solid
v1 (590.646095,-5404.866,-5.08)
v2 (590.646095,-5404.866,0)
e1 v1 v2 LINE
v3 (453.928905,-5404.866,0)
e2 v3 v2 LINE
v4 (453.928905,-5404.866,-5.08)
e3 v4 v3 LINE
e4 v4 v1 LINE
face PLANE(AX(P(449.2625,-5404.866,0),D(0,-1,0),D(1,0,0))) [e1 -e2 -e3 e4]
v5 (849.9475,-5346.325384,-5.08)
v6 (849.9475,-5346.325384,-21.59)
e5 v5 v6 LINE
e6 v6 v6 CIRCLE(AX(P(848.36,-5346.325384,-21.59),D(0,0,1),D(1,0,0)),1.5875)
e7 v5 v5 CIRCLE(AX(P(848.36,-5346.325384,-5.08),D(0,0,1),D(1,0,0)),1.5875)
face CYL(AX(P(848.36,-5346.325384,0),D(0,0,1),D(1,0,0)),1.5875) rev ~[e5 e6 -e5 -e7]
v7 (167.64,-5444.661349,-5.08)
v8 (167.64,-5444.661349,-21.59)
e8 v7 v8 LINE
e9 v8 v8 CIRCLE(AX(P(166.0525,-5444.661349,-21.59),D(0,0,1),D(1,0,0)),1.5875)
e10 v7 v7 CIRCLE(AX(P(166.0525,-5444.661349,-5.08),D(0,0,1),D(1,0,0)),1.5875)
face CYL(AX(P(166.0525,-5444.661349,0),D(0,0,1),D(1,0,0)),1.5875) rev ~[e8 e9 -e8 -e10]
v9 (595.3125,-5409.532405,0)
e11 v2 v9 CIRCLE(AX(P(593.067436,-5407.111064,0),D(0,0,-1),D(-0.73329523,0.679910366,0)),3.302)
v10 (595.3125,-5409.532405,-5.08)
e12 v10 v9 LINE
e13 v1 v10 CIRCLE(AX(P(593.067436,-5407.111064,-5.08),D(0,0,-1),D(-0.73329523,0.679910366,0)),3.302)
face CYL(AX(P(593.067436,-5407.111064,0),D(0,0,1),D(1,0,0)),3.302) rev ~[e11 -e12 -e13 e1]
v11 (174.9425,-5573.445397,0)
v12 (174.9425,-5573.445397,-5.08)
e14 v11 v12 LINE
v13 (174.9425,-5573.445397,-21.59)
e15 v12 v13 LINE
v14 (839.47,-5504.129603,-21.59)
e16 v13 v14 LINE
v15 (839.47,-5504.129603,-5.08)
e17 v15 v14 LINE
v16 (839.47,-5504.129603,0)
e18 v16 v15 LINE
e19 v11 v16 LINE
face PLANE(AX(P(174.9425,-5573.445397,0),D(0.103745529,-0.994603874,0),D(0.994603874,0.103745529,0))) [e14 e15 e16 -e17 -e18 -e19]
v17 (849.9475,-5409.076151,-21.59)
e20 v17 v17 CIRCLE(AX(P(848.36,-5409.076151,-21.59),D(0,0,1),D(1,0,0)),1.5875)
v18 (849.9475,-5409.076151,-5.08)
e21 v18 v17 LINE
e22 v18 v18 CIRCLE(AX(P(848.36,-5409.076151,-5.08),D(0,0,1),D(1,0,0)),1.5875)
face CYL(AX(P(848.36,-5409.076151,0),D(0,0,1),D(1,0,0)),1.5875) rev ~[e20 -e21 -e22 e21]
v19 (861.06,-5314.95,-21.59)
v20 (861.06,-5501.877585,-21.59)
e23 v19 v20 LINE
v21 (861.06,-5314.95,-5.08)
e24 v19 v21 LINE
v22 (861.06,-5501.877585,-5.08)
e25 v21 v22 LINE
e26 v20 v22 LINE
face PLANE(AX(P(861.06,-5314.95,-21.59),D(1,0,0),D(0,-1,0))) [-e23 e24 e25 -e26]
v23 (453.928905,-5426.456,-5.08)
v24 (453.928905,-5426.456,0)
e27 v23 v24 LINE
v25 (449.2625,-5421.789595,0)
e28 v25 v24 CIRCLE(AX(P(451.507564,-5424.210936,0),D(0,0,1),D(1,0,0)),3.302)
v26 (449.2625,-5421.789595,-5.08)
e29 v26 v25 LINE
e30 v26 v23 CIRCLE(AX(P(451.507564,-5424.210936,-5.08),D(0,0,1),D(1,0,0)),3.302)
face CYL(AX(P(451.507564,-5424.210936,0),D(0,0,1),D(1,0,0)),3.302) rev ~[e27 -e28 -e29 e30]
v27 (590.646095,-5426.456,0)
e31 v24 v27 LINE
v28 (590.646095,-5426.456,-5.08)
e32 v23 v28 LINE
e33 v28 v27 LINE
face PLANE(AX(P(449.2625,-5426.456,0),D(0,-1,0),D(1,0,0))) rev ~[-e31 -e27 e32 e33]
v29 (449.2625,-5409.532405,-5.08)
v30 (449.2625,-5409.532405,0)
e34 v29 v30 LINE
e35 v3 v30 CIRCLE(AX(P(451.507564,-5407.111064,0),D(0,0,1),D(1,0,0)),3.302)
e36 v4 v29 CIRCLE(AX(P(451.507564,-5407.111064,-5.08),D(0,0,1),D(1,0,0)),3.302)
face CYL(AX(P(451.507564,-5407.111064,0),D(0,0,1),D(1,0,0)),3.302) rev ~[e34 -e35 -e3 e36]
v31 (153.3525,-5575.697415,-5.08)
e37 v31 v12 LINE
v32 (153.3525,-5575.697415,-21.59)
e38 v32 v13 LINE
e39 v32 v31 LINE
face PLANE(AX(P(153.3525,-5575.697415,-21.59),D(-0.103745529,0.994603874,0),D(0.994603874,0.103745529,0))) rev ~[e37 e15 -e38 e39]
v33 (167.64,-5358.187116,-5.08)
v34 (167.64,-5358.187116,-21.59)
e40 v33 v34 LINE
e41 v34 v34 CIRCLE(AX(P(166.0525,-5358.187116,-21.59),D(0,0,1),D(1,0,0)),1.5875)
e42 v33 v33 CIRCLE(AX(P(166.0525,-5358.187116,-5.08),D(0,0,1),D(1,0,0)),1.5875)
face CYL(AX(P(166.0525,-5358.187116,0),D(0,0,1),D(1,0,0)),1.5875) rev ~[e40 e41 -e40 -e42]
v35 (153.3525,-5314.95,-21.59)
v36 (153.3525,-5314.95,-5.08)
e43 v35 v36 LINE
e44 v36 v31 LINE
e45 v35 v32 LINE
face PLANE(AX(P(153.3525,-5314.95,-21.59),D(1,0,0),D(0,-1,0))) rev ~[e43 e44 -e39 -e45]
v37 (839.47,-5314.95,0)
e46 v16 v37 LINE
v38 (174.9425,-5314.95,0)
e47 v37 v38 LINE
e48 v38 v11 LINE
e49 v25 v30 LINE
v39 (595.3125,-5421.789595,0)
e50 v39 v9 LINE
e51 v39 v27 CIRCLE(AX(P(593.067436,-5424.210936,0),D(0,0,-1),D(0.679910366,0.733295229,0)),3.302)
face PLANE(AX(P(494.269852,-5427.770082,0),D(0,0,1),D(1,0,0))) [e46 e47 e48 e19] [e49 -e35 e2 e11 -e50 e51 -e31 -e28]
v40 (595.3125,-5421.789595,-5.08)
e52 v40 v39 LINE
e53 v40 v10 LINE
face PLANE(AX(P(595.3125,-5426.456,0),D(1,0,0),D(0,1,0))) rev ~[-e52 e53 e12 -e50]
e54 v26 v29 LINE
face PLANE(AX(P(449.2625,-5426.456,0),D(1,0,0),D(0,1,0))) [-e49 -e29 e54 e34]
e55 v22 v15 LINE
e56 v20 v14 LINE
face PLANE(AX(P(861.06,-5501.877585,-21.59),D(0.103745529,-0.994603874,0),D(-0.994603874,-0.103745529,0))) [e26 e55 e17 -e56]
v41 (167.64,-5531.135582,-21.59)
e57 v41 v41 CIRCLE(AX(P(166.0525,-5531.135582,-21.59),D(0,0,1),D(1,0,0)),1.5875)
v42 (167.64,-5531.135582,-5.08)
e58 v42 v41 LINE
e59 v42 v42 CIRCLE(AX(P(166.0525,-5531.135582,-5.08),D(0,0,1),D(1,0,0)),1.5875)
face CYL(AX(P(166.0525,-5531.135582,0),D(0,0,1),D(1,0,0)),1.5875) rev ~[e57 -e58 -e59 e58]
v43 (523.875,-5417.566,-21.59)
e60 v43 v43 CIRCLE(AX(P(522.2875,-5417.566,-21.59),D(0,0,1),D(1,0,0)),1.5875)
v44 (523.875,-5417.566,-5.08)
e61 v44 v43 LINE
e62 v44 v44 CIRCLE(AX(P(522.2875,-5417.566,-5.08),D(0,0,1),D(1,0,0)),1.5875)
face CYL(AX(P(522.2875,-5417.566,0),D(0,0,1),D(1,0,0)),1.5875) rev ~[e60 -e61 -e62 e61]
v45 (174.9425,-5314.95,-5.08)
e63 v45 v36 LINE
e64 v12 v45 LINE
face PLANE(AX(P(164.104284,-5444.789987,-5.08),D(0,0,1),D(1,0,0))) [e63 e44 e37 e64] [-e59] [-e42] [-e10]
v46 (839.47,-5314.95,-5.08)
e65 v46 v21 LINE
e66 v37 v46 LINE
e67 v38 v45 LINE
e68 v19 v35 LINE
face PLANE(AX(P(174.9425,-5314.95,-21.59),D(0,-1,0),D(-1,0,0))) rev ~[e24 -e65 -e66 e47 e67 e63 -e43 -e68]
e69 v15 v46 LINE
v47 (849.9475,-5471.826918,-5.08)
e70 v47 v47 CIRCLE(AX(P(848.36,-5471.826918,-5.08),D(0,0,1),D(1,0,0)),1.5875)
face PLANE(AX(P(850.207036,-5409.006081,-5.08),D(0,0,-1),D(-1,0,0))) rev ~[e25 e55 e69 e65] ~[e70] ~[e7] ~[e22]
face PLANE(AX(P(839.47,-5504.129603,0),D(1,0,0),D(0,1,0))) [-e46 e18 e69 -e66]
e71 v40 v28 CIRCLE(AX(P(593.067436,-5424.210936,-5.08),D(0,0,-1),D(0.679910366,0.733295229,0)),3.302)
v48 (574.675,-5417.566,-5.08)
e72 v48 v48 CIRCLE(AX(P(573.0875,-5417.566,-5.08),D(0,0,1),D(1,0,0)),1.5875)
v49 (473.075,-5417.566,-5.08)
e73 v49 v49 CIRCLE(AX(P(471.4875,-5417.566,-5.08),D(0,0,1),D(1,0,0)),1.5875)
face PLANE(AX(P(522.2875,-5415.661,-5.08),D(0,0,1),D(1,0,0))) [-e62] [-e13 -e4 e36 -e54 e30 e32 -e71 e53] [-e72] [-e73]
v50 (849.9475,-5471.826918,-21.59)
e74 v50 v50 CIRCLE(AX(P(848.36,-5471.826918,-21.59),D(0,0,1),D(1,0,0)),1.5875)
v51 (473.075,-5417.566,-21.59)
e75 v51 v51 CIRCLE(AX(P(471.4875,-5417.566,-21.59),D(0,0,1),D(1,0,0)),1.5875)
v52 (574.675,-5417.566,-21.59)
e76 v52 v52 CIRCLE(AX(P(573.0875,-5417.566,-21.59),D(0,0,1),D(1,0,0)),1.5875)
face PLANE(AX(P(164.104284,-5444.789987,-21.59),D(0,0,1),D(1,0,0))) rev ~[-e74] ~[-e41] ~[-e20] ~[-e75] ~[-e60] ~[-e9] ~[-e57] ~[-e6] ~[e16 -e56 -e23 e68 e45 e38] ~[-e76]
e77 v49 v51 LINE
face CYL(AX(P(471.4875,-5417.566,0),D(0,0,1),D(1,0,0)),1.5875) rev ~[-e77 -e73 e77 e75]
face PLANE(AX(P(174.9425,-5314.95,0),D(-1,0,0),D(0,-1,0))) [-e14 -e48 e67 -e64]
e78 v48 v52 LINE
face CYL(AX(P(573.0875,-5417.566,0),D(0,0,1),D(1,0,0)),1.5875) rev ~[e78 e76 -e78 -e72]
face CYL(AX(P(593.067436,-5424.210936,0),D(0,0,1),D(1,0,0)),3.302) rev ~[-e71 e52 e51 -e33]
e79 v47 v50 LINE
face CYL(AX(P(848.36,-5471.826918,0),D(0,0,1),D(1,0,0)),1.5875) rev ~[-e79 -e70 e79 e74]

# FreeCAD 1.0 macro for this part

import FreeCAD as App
import Part
import Sketcher
Q = App.Units.Quantity


def add_polygon(sketch, points):
    """Adds a closed chain of lines whose ends are joined by coincident constraints."""
    first, n = sketch.GeometryCount, len(points)
    for a, b in zip(points, points[1:] + points[:1]):
        sketch.addGeometry(Part.LineSegment(App.Vector(*a, 0), App.Vector(*b, 0)), False)
    for i in range(n):
        sketch.addConstraint(Sketcher.Constraint("Coincident", first + i, 2, first + (i + 1) % n, 1))

doc = App.newDocument("Part")
body = doc.addObject("PartDesign::Body", "Body")

# Sketch on XY plane
sketch1 = body.newObject("Sketcher::SketchObject", "Sketch")
sketch1.AttachmentSupport = (doc.getObject("XY_Plane"), [""])
sketch1.MapMode = "FlatFace"
add_polygon(sketch1, [(839, -5504), (839, -5315), (175, -5315), (175, -5573)])  # lines 0-3
sketch1.addConstraint([
    Sketcher.Constraint("Vertical", 0),
    Sketcher.Constraint("Horizontal", 1),
    Sketcher.Constraint("Vertical", 2),
    Sketcher.Constraint("DistanceX", -1, 1, 0, 2, Q("33.05 in")),
    Sketcher.Constraint("DistanceY", 0, 2, -1, 1, Q("209.25 in")),
    Sketcher.Constraint("DistanceX", 1, 2, 1, 1, Q("26.1625 in")),
    Sketcher.Constraint("Distance", 3, Q("668.132829 mm")),
    Sketcher.Constraint("DistanceY", 0, 1, 0, 2, Q("189.179603 mm")),
])
pad1 = body.newObject("PartDesign::Pad", "Pad")
pad1.Profile = sketch1
pad1.Length = Q("0.85 in")
pad1.Reversed = True

# Sketch on XY plane
sketch2 = body.newObject("Sketcher::SketchObject", "Sketch001")
sketch2.AttachmentSupport = (doc.getObject("XY_Plane"), [""])
sketch2.MapMode = "FlatFace"
sketch2.AttachmentOffset = App.Placement(App.Vector(0, 0, -0.85 * 25.4), App.Rotation())
add_polygon(sketch2, [(153, -5315), (175, -5315), (175, -5573), (153, -5576)])  # lines 0-3
add_polygon(sketch2, [(839, -5315), (861, -5315), (861, -5502), (839, -5504)])  # lines 4-7
sketch2.addConstraint([
    Sketcher.Constraint("Horizontal", 0),
    Sketcher.Constraint("Vertical", 1),
    Sketcher.Constraint("Vertical", 3),
    Sketcher.Constraint("Horizontal", 4),
    Sketcher.Constraint("Vertical", 5),
    Sketcher.Constraint("Vertical", 7),
    Sketcher.Constraint("Parallel", 2, 6),
    Sketcher.Constraint("Horizontal", 3, 2, 4, 2),
    Sketcher.Constraint("Equal", 0, 4),
    Sketcher.Constraint("DistanceX", 0, 1, 0, 2, Q("0.85 in")),
    Sketcher.Constraint("DistanceX", -1, 1, 4, 2, Q("33.9 in")),
    Sketcher.Constraint("DistanceY", 0, 2, -1, 1, Q("209.25 in")),
    Sketcher.Constraint("DistanceX", -1, 1, 0, 2, Q("6.8875 in")),
    Sketcher.Constraint("DistanceY", 1, 2, 1, 1, Q("258.495397 mm")),
    Sketcher.Constraint("DistanceY", 3, 1, 3, 2, Q("260.747415 mm")),
    Sketcher.Constraint("DistanceY", 5, 2, 5, 1, Q("186.927585 mm")),
])
pad2 = body.newObject("PartDesign::Pad", "Pad001")
pad2.Profile = sketch2
pad2.Length = Q("0.65 in")

# Sketch on XY plane
sketch3 = body.newObject("Sketcher::SketchObject", "Sketch002")
sketch3.AttachmentSupport = (doc.getObject("XY_Plane"), [""])
sketch3.MapMode = "FlatFace"
add_polygon(sketch3, [(449, -5405), (449, -5426), (595, -5426), (595, -5405)])  # lines 0-3
sketch3.addConstraint([
    Sketcher.Constraint("Vertical", 0),
    Sketcher.Constraint("Horizontal", 1),
    Sketcher.Constraint("Vertical", 2),
    Sketcher.Constraint("Horizontal", 3),
    Sketcher.Constraint("DistanceX", 1, 1, 1, 2, Q("5.75 in")),
    Sketcher.Constraint("DistanceY", 0, 2, 0, 1, Q("0.85 in")),
    Sketcher.Constraint("DistanceY", 0, 2, -1, 1, Q("213.64 in")),
    Sketcher.Constraint("DistanceX", -1, 1, 0, 2, Q("17.6875 in")),
])
pocket1 = body.newObject("PartDesign::Pocket", "Pocket")
pocket1.Profile = sketch3
pocket1.Length = Q("0.2 in")

# Sketch on XY plane
sketch4 = body.newObject("Sketcher::SketchObject", "Sketch003")
sketch4.AttachmentSupport = (doc.getObject("XY_Plane"), [""])
sketch4.MapMode = "FlatFace"
sketch4.addGeometry([
    Part.Circle(App.Vector(451.5, -5407.1, 0), App.Vector(0, 0, 1), 3.3),
    Part.Circle(App.Vector(451.5, -5424.2, 0), App.Vector(0, 0, 1), 3.3),
    Part.Circle(App.Vector(593.1, -5424.2, 0), App.Vector(0, 0, 1), 3.3),
    Part.Circle(App.Vector(593.1, -5407.1, 0), App.Vector(0, 0, 1), 3.3),
], False)
sketch4.addConstraint([
    Sketcher.Constraint("Equal", 0, 1),
    Sketcher.Constraint("Equal", 1, 2),
    Sketcher.Constraint("Equal", 2, 3),
    Sketcher.Constraint("Horizontal", 1, 3, 2, 3),
    Sketcher.Constraint("Horizontal", 0, 3, 3, 3),
    Sketcher.Constraint("Vertical", 0, 3, 1, 3),
    Sketcher.Constraint("Vertical", 2, 3, 3, 3),
    Sketcher.Constraint("Diameter", 0, Q("0.26 in")),
    Sketcher.Constraint("DistanceY", 1, 3, 0, 3, Q("17.099872 mm")),
    Sketcher.Constraint("DistanceX", 1, 3, 2, 3, Q("141.559872 mm")),
    Sketcher.Constraint("DistanceX", -1, 1, 0, 3, Q("451.507564 mm")),
    Sketcher.Constraint("DistanceY", 0, 3, -1, 1, Q("5407.111064 mm")),
])
pocket2 = body.newObject("PartDesign::Pocket", "Pocket001")
pocket2.Profile = sketch4
pocket2.Length = Q("0.2 in")

# Sketch on XY plane
sketch5 = body.newObject("Sketcher::SketchObject", "Sketch004")
sketch5.AttachmentSupport = (doc.getObject("XY_Plane"), [""])
sketch5.MapMode = "FlatFace"
sketch5.addGeometry([
    Part.Circle(App.Vector(166.1, -5531.1, 0), App.Vector(0, 0, 1), 1.6),  # 0
    Part.Circle(App.Vector(166.1, -5444.7, 0), App.Vector(0, 0, 1), 1.6),  # 1
    Part.Circle(App.Vector(166.1, -5358.2, 0), App.Vector(0, 0, 1), 1.6),  # 2
    Part.Circle(App.Vector(848.4, -5471.8, 0), App.Vector(0, 0, 1), 1.6),  # 3
    Part.Circle(App.Vector(848.4, -5409.1, 0), App.Vector(0, 0, 1), 1.6),  # 4
    Part.Circle(App.Vector(848.4, -5346.3, 0), App.Vector(0, 0, 1), 1.6),  # 5
    Part.Circle(App.Vector(573.1, -5417.6, 0), App.Vector(0, 0, 1), 1.6),  # 6
    Part.Circle(App.Vector(522.3, -5417.6, 0), App.Vector(0, 0, 1), 1.6),  # 7
    Part.Circle(App.Vector(471.5, -5417.6, 0), App.Vector(0, 0, 1), 1.6),  # 8
], False)
sketch5.addConstraint([
    Sketcher.Constraint("Equal", 0, 1),
    Sketcher.Constraint("Equal", 1, 2),
    Sketcher.Constraint("Equal", 2, 3),
    Sketcher.Constraint("Equal", 3, 4),
    Sketcher.Constraint("Equal", 4, 5),
    Sketcher.Constraint("Equal", 5, 6),
    Sketcher.Constraint("Equal", 6, 7),
    Sketcher.Constraint("Equal", 7, 8),
    Sketcher.Constraint("Horizontal", 6, 3, 7, 3),
    Sketcher.Constraint("Horizontal", 7, 3, 8, 3),
    Sketcher.Constraint("Vertical", 0, 3, 1, 3),
    Sketcher.Constraint("Vertical", 1, 3, 2, 3),
    Sketcher.Constraint("Vertical", 3, 3, 4, 3),
    Sketcher.Constraint("Vertical", 4, 3, 5, 3),
    Sketcher.Constraint("Diameter", 0, Q("0.125 in")),
    Sketcher.Constraint("DistanceX", 7, 3, 6, 3, Q("2 in")),
    Sketcher.Constraint("DistanceX", 8, 3, 7, 3, Q("2 in")),
    Sketcher.Constraint("DistanceX", -1, 1, 3, 3, Q("33.4 in")),
    Sketcher.Constraint("DistanceY", 6, 3, -1, 1, Q("213.29 in")),
    Sketcher.Constraint("DistanceX", -1, 1, 6, 3, Q("22.5625 in")),
    Sketcher.Constraint("DistanceX", 1, 3, 6, 3, Q("16.025 in")),
    Sketcher.Constraint("DistanceY", 3, 3, 2, 3, Q("113.639802 mm")),
    Sketcher.Constraint("DistanceY", 1, 3, 4, 3, Q("35.585198 mm")),
    Sketcher.Constraint("DistanceY", 0, 3, 5, 3, Q("184.810198 mm")),
    Sketcher.Constraint("DistanceY", 1, 3, -1, 1, Q("5444.661349 mm")),
    Sketcher.Constraint("DistanceY", 3, 3, 1, 3, Q("27.165569 mm")),
    Sketcher.Constraint("DistanceY", 0, 3, 4, 3, Q("122.059431 mm")),
])
pocket3 = body.newObject("PartDesign::Pocket", "Pocket002")
pocket3.Profile = sketch5
pocket3.Length = Q("0.85 in")

doc.recompute()
